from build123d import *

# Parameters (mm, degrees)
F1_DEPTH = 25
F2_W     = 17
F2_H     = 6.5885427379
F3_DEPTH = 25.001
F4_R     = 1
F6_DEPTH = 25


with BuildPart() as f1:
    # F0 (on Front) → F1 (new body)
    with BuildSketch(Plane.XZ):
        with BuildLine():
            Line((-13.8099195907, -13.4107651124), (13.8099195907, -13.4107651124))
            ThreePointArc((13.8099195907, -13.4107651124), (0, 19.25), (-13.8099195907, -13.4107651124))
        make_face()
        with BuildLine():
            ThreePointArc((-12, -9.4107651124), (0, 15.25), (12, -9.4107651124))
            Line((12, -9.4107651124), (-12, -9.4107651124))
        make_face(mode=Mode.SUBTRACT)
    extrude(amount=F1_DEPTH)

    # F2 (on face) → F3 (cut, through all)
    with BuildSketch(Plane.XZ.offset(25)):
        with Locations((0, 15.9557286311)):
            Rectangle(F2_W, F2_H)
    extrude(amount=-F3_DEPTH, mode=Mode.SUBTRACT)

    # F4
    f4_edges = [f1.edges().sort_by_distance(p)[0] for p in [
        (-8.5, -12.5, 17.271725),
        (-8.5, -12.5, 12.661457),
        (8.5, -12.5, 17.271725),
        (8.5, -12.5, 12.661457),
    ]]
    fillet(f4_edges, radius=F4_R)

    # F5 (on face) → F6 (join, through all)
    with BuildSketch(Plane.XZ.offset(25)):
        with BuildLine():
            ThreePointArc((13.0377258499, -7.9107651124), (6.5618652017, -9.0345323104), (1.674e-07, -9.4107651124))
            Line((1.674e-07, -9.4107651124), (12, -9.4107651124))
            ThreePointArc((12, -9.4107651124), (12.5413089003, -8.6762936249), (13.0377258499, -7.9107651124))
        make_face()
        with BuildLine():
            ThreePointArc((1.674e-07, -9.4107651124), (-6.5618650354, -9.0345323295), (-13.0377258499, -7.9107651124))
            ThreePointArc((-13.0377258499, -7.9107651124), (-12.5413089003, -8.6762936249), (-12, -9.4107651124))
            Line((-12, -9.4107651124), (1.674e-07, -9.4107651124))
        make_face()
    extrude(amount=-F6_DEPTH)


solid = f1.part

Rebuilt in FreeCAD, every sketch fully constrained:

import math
import FreeCAD as App
import Part
import Sketcher

V = App.Vector
Q = App.Units.Quantity


def edges_at(feature, points):
    """Names of the edges that pass closest to the given points."""
    edges = feature.Shape.Edges
    near = lambda p: min(range(len(edges)), key=lambda i: edges[i].distToShape(Part.Vertex(*p))[0])
    return sorted({f"Edge{near(p) + 1}" for p in points})


def add_polygon(sketch, points):
    """Adds a closed chain of lines whose ends are joined by coincident constraints."""
    first, n = sketch.GeometryCount, len(points)
    for a, b in zip(points, points[1:] + points[:1]):
        sketch.addGeometry(Part.LineSegment(App.Vector(*a, 0), App.Vector(*b, 0)), False)
    for i in range(n):
        sketch.addConstraint(Sketcher.Constraint("Coincident", first + i, 2, first + (i + 1) % n, 1))

doc = App.newDocument("Part")
body = doc.addObject("PartDesign::Body", "Body")

# Sketch on XZ plane
sketch1 = body.newObject("Sketcher::SketchObject", "Sketch")
sketch1.AttachmentSupport = (doc.getObject("XZ_Plane"), [""])
sketch1.MapMode = "FlatFace"
sketch1.addGeometry(Part.LineSegment(V(-14, -13, 0), V(14, -13, 0)), False)
sketch1.addGeometry(Part.ArcOfCircle(Part.Circle(V(0, 0, 0), V(0, 0, 1), 19), math.radians(-44), math.radians(224)), False)
sketch1.addGeometry(Part.LineSegment(V(12, -9, 0), V(-12, -9, 0)), False)
sketch1.addGeometry(Part.ArcOfCircle(Part.Circle(V(0, 0, 0), V(0, 0, 1), 15), math.radians(-38), math.radians(218)), False)
sketch1.addConstraint(Sketcher.Constraint("Coincident", 0, 1, 1, 2))
sketch1.addConstraint(Sketcher.Constraint("Coincident", 1, 1, 0, 2))
sketch1.addConstraint(Sketcher.Constraint("Coincident", 2, 1, 3, 1))
sketch1.addConstraint(Sketcher.Constraint("Coincident", 3, 2, 2, 2))
sketch1.addConstraint(Sketcher.Constraint("Horizontal", 0))
sketch1.addConstraint(Sketcher.Constraint("Horizontal", 2))
sketch1.addConstraint(Sketcher.Constraint("Coincident", 1, 3, -1, 1))
sketch1.addConstraint(Sketcher.Constraint("Coincident", 3, 3, -1, 1))
sketch1.addConstraint(Sketcher.Constraint("DistanceX", 2, 2, 2, 1, Q("24 mm")))
sketch1.addConstraint(Sketcher.Constraint("Radius", 1, Q("19.25 mm")))
sketch1.addConstraint(Sketcher.Constraint("Radius", 3, Q("15.25 mm")))
sketch1.addConstraint(Sketcher.Constraint("DistanceY", 1, 1, 2, 1, Q("4 mm")))
pad1 = body.newObject("PartDesign::Pad", "Pad")
pad1.Profile = sketch1
pad1.Length = 25

# Sketch on XZ plane
sketch2 = body.newObject("Sketcher::SketchObject", "Sketch001")
sketch2.AttachmentSupport = (doc.getObject("XZ_Plane"), [""])
sketch2.MapMode = "FlatFace"
sketch2.AttachmentOffset = App.Placement(V(0, 0, 25), App.Rotation())
add_polygon(sketch2, [(-8, 19), (-8, 13), (8, 13), (8, 19)])  # lines 0-3
sketch2.addConstraint(Sketcher.Constraint("Vertical", 0))
sketch2.addConstraint(Sketcher.Constraint("Horizontal", 1))
sketch2.addConstraint(Sketcher.Constraint("Vertical", 2))
sketch2.addConstraint(Sketcher.Constraint("Horizontal", 3))
sketch2.addConstraint(Sketcher.Constraint("DistanceX", 1, 1, 1, 2, Q("17 mm")))
sketch2.addConstraint(Sketcher.Constraint("DistanceX", 0, 2, -1, 1, Q("8.5 mm")))
sketch2.addConstraint(Sketcher.Constraint("DistanceY", -1, 1, 2, 2, Q("19.25 mm")))
sketch2.addConstraint(Sketcher.Constraint("DistanceY", 0, 2, 0, 1, Q("6.588543 mm")))
pocket1 = body.newObject("PartDesign::Pocket", "Pocket")
pocket1.Profile = sketch2
pocket1.Type = "ThroughAll"
doc.recompute()

fillet = body.newObject("PartDesign::Fillet", "Fillet")
fillet.Base = (pocket1, edges_at(pocket1, [
    (-8.5, -12.5, 17.272),
    (-8.5, -12.5, 12.661),
    (8.5, -12.5, 17.272),
    (8.5, -12.5, 12.661),
]))
fillet.Radius = 1

# Sketch on XZ plane
sketch3 = body.newObject("Sketcher::SketchObject", "Sketch002")
sketch3.AttachmentSupport = (doc.getObject("XZ_Plane"), [""])
sketch3.MapMode = "FlatFace"
sketch3.AttachmentOffset = App.Placement(V(0, 0, 25), App.Rotation())
sketch3.addGeometry(Part.ArcOfCircle(Part.Circle(V(0, 48, 0), V(0, 0, 1), 57.4), math.radians(-90), math.radians(-76.87)), False)
sketch3.addGeometry(Part.LineSegment(V(0, -9.4, 0), V(12, -9.4, 0)), False)
sketch3.addGeometry(Part.ArcOfCircle(Part.Circle(V(0, 0, 0), V(0, 0, 1), 15.3), math.radians(-38.1), math.radians(-31.25)), False)
sketch3.addGeometry(Part.ArcOfCircle(Part.Circle(V(0, 48, 0), V(0, 0, 1), 57.4), math.radians(-103.13), math.radians(-90)), False)
sketch3.addGeometry(Part.ArcOfCircle(Part.Circle(V(0, 0, 0), V(0, 0, 1), 15.3), math.radians(-148.75), math.radians(-141.9)), False)
sketch3.addGeometry(Part.LineSegment(V(-12, -9.4, 0), V(0, -9.4, 0)), False)
sketch3.addConstraint(Sketcher.Constraint("Tangent", 0, 1, 1, 1))
sketch3.addConstraint(Sketcher.Constraint("Coincident", 1, 2, 2, 1))
sketch3.addConstraint(Sketcher.Constraint("Coincident", 2, 2, 0, 2))
sketch3.addConstraint(Sketcher.Constraint("Coincident", 3, 1, 4, 1))
sketch3.addConstraint(Sketcher.Constraint("Coincident", 4, 2, 5, 1))
sketch3.addConstraint(Sketcher.Constraint("Tangent", 5, 2, 3, 2))
sketch3.addConstraint(Sketcher.Constraint("Horizontal", 1))
sketch3.addConstraint(Sketcher.Constraint("Horizontal", 5))
sketch3.addConstraint(Sketcher.Constraint("Coincident", 2, 3, -1, 1))
sketch3.addConstraint(Sketcher.Constraint("Coincident", 4, 3, -1, 1))
sketch3.addConstraint(Sketcher.Constraint("Coincident", 3, 3, 0, 3))
sketch3.addConstraint(Sketcher.Constraint("Equal", 0, 3))
sketch3.addConstraint(Sketcher.Constraint("Equal", 2, 4))
sketch3.addConstraint(Sketcher.Constraint("PointOnObject", 0, 3, -2))
sketch3.addConstraint(Sketcher.Constraint("DistanceX", 1, 1, 1, 2, Q("12 mm")))
sketch3.addConstraint(Sketcher.Constraint("Radius", 2, Q("15.25 mm")))
sketch3.addConstraint(Sketcher.Constraint("DistanceY", -1, 1, 0, 3, Q("48 mm")))
pad2 = body.newObject("PartDesign::Pad", "Pad001")
pad2.Profile = sketch3
pad2.Length = 25
pad2.Reversed = True

doc.recompute()
